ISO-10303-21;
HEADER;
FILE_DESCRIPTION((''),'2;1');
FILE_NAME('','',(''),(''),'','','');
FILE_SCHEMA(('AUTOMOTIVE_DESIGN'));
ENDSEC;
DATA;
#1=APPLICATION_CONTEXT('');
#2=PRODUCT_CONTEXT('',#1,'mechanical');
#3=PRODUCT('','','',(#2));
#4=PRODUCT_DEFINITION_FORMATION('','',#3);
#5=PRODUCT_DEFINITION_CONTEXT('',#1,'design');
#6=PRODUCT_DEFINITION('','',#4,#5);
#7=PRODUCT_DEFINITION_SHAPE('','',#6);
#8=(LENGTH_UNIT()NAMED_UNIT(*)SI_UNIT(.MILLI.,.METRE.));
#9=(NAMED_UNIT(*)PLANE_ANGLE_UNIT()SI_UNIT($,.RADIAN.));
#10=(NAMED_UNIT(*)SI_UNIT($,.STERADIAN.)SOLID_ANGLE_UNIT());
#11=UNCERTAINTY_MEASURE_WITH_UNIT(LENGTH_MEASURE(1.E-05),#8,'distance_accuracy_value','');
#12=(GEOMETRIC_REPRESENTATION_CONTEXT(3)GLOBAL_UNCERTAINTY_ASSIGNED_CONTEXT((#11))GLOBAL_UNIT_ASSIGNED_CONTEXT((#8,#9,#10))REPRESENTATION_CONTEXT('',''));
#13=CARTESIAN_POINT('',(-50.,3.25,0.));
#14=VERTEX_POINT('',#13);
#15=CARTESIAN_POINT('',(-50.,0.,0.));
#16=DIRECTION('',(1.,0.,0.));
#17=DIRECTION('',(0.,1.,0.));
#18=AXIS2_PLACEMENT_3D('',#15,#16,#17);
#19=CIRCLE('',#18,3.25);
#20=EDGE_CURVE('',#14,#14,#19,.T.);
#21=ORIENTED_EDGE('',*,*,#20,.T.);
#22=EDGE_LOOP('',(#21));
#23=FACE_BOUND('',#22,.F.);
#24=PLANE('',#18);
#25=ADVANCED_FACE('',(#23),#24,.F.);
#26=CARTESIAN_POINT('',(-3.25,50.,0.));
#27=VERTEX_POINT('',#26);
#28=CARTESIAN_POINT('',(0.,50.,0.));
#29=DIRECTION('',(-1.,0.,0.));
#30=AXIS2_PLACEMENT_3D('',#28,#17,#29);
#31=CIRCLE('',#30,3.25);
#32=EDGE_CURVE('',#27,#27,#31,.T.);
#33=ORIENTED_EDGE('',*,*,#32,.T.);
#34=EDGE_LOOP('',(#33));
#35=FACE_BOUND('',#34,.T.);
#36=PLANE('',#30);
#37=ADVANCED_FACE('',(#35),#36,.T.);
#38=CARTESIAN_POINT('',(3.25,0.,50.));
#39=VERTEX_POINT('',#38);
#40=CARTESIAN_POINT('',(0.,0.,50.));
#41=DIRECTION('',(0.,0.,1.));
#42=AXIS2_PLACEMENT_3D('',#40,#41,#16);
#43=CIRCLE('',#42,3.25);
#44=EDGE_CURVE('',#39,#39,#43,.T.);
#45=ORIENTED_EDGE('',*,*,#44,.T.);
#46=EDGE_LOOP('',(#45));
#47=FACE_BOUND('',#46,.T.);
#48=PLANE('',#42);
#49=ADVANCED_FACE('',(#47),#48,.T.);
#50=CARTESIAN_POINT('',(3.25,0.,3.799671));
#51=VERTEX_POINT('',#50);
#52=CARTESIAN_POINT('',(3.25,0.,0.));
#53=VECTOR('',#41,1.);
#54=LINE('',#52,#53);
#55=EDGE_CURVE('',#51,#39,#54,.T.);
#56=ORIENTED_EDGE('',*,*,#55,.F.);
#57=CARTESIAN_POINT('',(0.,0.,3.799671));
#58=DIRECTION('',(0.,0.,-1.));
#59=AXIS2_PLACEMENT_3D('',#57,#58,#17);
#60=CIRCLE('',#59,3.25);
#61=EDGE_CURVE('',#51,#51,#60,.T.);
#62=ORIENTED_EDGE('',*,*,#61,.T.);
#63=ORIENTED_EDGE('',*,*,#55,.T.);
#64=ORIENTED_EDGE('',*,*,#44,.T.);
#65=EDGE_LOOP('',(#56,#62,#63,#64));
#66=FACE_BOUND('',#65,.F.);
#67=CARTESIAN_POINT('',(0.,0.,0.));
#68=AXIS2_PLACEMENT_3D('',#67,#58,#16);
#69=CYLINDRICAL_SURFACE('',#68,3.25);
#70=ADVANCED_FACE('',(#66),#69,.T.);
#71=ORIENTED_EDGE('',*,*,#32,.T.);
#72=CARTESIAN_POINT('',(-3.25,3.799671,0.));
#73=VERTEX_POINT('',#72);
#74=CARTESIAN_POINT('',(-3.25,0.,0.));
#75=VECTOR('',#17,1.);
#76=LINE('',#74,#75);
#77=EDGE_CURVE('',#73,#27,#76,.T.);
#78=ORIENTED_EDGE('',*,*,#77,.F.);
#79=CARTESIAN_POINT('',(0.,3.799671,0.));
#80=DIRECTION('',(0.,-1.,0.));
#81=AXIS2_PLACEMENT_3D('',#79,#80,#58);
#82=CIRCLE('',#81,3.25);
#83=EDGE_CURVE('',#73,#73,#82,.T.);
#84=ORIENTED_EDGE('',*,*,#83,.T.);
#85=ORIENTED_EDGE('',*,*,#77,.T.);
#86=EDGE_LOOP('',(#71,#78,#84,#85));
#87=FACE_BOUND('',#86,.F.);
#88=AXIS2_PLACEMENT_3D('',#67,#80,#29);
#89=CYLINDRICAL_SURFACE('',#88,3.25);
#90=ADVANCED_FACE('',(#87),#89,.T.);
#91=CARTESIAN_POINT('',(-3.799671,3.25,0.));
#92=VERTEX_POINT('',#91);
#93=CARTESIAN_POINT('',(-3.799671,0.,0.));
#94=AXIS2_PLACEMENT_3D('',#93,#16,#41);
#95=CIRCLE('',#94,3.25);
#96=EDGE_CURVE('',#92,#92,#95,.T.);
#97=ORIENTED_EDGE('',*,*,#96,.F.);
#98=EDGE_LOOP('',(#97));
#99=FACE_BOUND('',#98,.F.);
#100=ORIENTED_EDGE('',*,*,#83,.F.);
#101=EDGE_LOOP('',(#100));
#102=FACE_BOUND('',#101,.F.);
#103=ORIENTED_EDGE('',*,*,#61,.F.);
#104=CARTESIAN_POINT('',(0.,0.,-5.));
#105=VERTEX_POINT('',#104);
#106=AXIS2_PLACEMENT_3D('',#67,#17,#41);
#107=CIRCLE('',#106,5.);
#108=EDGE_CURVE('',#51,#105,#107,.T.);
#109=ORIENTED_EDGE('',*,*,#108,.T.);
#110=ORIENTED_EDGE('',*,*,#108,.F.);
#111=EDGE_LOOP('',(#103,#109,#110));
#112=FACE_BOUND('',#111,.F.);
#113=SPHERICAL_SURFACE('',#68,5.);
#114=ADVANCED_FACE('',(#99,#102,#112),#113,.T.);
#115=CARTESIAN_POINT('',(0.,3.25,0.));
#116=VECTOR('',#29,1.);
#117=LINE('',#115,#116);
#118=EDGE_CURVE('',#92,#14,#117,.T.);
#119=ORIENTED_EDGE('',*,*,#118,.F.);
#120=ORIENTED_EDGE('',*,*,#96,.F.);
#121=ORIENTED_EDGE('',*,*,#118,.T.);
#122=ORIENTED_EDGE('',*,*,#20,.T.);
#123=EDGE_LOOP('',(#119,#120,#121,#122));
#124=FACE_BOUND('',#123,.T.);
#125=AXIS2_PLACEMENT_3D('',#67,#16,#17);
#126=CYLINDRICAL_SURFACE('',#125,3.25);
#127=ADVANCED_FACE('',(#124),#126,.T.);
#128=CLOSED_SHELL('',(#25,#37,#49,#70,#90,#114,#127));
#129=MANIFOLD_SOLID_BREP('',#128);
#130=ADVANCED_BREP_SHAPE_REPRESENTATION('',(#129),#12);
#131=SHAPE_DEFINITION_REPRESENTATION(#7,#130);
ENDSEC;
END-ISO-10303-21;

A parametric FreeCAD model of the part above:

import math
import FreeCAD as App
import Part
import Sketcher
from FreeCAD import Vector
Q = App.Units.Quantity

doc = App.newDocument("Part")
body = doc.addObject("PartDesign::Body", "Body")

# Sketch on XZ plane
sketch1 = body.newObject("Sketcher::SketchObject", "Sketch")
sketch1.AttachmentSupport = (doc.getObject("XZ_Plane"), [""])
sketch1.MapMode = "FlatFace"
sketch1.addGeometry(Part.Circle(Vector(0, 0, 0), Vector(0, 0, 1), 3.2), False)
sketch1.addConstraint([
    Sketcher.Constraint("Coincident", 0, 3, -1, 1),
    Sketcher.Constraint("Diameter", 0, Q("6.5 mm")),
])
pad1 = body.newObject("PartDesign::Pad", "Pad")
pad1.Profile = sketch1
pad1.Length = 50
pad1.Reversed = True

# Sketch on XZ plane
sketch2 = body.newObject("Sketcher::SketchObject", "Sketch001")
sketch2.AttachmentSupport = (doc.getObject("XZ_Plane"), [""])
sketch2.MapMode = "FlatFace"
sketch2.addGeometry([
    Part.LineSegment(Vector(0, -5, 0), Vector(0, 5, 0)),
    Part.ArcOfCircle(Part.Circle(Vector(0, 0, 0), Vector(0, 0, 1), 5), math.radians(-90), math.radians(90)),
], False)
sketch2.addConstraint([
    Sketcher.Constraint("Coincident", 0, 1, 1, 1),
    Sketcher.Constraint("Coincident", 1, 2, 0, 2),
    Sketcher.Constraint("Vertical", 0),
    Sketcher.Constraint("Coincident", 1, 3, -1, 1),
    Sketcher.Constraint("PointOnObject", 0, 1, -2),
    Sketcher.Constraint("Radius", 1, Q("5 mm")),
])
revolution = body.newObject("PartDesign::Revolution", "Revolution")
revolution.Profile = sketch2
revolution.ReferenceAxis = (sketch2, ["V_Axis"])
revolution.Angle = 360

# Sketch on XY plane
sketch3 = body.newObject("Sketcher::SketchObject", "Sketch002")
sketch3.AttachmentSupport = (doc.getObject("XY_Plane"), [""])
sketch3.MapMode = "FlatFace"
sketch3.addGeometry(Part.Circle(Vector(0, 0, 0), Vector(0, 0, 1), 3.2), False)
sketch3.addConstraint([
    Sketcher.Constraint("Coincident", 0, 3, -1, 1),
    Sketcher.Constraint("Diameter", 0, Q("6.5 mm")),
])
pad2 = body.newObject("PartDesign::Pad", "Pad001")
pad2.Profile = sketch3
pad2.Length = 50

# Sketch on YZ plane
sketch4 = body.newObject("Sketcher::SketchObject", "Sketch003")
sketch4.AttachmentSupport = (doc.getObject("YZ_Plane"), [""])
sketch4.MapMode = "FlatFace"
sketch4.addGeometry(Part.Circle(Vector(0, 0, 0), Vector(0, 0, 1), 3.2), False)
sketch4.addConstraint([
    Sketcher.Constraint("Coincident", 0, 3, -1, 1),
    Sketcher.Constraint("Diameter", 0, Q("6.5 mm")),
])
pad3 = body.newObject("PartDesign::Pad", "Pad002")
pad3.Profile = sketch4
pad3.Length = 50
pad3.Reversed = True

doc.recompute()
